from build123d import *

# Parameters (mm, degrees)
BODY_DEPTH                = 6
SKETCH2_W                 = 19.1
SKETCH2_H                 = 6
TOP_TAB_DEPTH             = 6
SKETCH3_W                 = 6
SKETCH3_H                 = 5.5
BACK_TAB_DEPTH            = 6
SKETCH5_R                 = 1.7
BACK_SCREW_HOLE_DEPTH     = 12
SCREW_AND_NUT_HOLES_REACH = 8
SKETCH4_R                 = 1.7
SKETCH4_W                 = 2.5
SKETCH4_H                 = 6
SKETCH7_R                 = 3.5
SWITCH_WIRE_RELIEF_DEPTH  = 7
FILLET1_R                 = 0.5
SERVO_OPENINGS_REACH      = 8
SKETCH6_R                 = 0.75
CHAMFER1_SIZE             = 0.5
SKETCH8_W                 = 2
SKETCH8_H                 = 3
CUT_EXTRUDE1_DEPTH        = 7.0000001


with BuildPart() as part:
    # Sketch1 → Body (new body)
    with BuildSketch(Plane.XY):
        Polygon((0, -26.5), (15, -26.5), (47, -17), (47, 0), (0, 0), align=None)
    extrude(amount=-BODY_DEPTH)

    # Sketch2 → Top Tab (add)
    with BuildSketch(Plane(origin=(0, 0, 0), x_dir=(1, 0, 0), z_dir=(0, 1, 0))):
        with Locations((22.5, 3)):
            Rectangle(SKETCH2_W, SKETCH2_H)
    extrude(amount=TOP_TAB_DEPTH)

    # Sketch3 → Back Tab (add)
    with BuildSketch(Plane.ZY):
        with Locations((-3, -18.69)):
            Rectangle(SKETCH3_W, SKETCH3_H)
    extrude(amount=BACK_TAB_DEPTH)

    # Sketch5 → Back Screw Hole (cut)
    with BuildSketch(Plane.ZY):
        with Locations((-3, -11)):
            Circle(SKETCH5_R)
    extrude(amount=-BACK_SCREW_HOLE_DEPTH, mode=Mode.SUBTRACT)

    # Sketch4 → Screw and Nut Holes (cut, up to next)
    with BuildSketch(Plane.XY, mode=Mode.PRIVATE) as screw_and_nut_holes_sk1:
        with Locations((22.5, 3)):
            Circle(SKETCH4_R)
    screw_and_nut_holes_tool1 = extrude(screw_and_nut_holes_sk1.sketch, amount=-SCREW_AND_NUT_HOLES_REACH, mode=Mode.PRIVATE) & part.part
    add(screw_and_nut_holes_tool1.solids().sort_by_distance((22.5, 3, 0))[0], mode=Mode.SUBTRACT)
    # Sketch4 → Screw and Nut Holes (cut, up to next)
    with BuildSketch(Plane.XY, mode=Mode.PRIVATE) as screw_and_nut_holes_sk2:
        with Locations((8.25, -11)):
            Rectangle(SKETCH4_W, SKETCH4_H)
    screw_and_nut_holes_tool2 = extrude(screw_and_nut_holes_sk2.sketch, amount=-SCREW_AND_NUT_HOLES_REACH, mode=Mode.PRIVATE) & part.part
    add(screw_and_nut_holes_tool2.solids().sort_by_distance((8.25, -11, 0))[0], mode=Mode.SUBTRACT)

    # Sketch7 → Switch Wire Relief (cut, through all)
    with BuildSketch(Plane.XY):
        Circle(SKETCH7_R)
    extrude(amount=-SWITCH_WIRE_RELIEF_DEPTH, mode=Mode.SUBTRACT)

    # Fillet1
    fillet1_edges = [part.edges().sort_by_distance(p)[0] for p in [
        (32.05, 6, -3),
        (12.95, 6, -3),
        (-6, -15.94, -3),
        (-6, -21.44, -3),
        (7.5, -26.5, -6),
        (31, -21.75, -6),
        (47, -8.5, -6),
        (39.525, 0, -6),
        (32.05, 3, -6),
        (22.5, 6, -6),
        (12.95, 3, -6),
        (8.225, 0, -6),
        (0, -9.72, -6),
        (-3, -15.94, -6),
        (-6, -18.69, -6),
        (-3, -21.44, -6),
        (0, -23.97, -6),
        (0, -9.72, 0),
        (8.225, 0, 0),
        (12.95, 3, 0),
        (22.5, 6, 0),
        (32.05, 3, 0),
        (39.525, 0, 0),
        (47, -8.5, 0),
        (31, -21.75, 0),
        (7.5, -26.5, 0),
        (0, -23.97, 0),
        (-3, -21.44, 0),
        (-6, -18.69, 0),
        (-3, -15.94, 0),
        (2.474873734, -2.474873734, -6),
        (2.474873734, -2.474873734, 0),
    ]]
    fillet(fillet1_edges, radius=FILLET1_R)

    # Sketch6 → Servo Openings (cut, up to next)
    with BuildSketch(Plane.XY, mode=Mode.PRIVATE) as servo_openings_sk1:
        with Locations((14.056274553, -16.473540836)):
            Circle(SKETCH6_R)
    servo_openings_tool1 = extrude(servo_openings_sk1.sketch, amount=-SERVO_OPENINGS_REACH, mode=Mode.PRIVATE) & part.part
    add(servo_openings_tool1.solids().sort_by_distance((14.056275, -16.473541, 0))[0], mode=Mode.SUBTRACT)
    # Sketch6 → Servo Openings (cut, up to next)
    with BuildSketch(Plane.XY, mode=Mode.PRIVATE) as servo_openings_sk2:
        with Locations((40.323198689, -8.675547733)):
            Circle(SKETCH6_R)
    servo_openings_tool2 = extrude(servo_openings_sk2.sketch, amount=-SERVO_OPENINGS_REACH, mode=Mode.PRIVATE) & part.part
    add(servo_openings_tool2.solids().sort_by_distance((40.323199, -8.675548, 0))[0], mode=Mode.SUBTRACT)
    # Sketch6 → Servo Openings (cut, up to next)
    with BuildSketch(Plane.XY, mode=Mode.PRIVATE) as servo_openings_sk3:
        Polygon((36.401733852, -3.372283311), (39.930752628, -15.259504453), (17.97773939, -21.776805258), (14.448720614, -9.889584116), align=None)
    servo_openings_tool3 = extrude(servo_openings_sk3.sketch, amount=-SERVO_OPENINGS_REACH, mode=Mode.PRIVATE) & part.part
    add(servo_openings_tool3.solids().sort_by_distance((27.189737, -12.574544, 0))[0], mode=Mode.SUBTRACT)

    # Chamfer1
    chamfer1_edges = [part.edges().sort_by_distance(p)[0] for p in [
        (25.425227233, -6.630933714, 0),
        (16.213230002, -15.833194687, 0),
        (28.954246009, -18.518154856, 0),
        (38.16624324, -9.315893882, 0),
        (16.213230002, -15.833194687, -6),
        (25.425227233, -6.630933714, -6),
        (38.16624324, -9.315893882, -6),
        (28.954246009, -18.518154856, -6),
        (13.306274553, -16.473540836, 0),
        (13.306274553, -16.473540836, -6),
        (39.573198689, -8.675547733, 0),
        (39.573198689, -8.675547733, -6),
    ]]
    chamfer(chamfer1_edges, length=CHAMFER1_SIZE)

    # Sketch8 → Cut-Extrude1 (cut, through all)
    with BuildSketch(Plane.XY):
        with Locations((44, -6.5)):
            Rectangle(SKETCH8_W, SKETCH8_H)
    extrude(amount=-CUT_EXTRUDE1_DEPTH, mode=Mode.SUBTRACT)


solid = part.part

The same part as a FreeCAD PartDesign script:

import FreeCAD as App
import Part
import Sketcher

V = App.Vector
Q = App.Units.Quantity


def edges_at(feature, points):
    """Names of the edges that pass closest to the given points."""
    edges = feature.Shape.Edges
    near = lambda p: min(range(len(edges)), key=lambda i: edges[i].distToShape(Part.Vertex(*p))[0])
    return sorted({f"Edge{near(p) + 1}" for p in points})

doc = App.newDocument("Part")
body = doc.addObject("PartDesign::Body", "Body")

# Sketch on XY plane
sketch1 = doc.addObject("Sketcher::SketchObject", "Sketch")
body.addObject(sketch1)
sketch1.AttachmentSupport = (doc.XY_Plane, [""])
sketch1.MapMode = "FlatFace"
sketch1.addGeometry([
    Part.LineSegment(V(0, -26, 0), V(15, -26, 0)),  # 0
    Part.LineSegment(V(15, -26, 0), V(47, -17, 0)),  # 1
    Part.LineSegment(V(47, -17, 0), V(47, 0, 0)),  # 2
    Part.LineSegment(V(47, 0, 0), V(0, 0, 0)),  # 3
    Part.LineSegment(V(0, 0, 0), V(0, -26, 0)),  # 4
], False)
sketch1.addConstraint([
    Sketcher.Constraint("Coincident", 0, 2, 1, 1),
    Sketcher.Constraint("Coincident", 1, 2, 2, 1),
    Sketcher.Constraint("Coincident", 2, 2, 3, 1),
    Sketcher.Constraint("Coincident", 3, 2, 4, 1),
    Sketcher.Constraint("Coincident", 4, 2, 0, 1),
    Sketcher.Constraint("Horizontal", 0),
    Sketcher.Constraint("Vertical", 2),
    Sketcher.Constraint("Horizontal", 3),
    Sketcher.Constraint("Vertical", 4),
    Sketcher.Constraint("Coincident", 3, 2, -1, 1),
    Sketcher.Constraint("DistanceX", 0, 1, 0, 2, Q("15 mm")),
    Sketcher.Constraint("DistanceX", 3, 2, 3, 1, Q("47 mm")),
    Sketcher.Constraint("DistanceY", 2, 1, 2, 2, Q("17 mm")),
    Sketcher.Constraint("DistanceY", 4, 2, 4, 1, Q("26.5 mm")),
])
pad1 = doc.addObject("PartDesign::Pad", "Pad")
body.addObject(pad1)
pad1.Profile = sketch1
pad1.Length = 6
pad1.Reversed = True

# Sketch on XZ plane
sketch2 = doc.addObject("Sketcher::SketchObject", "Sketch001")
body.addObject(sketch2)
sketch2.AttachmentSupport = (doc.XZ_Plane, [""])
sketch2.MapMode = "FlatFace"
sketch2.addGeometry([
    Part.LineSegment(V(13, -6, 0), V(13, 0, 0)),
    Part.LineSegment(V(13, 0, 0), V(32, 0, 0)),
    Part.LineSegment(V(32, 0, 0), V(32, -6, 0)),
    Part.LineSegment(V(32, -6, 0), V(13, -6, 0)),
], False)
sketch2.addConstraint([
    Sketcher.Constraint("Coincident", 0, 2, 1, 1),
    Sketcher.Constraint("Coincident", 1, 2, 2, 1),
    Sketcher.Constraint("Coincident", 2, 2, 3, 1),
    Sketcher.Constraint("Coincident", 3, 2, 0, 1),
    Sketcher.Constraint("Vertical", 0),
    Sketcher.Constraint("Horizontal", 1),
    Sketcher.Constraint("Vertical", 2),
    Sketcher.Constraint("Horizontal", 3),
    Sketcher.Constraint("PointOnObject", 0, 2, -1),
    Sketcher.Constraint("DistanceY", 0, 1, 0, 2, Q("6 mm")),
    Sketcher.Constraint("DistanceX", 1, 1, 1, 2, Q("19.1 mm")),
    Sketcher.Constraint("DistanceX", -1, 1, 0, 2, Q("12.95 mm")),
])
pad2 = doc.addObject("PartDesign::Pad", "Pad001")
body.addObject(pad2)
pad2.Profile = sketch2
pad2.Length = 6
pad2.Reversed = True

# Sketch on YZ plane
sketch3 = doc.addObject("Sketcher::SketchObject", "Sketch002")
body.addObject(sketch3)
sketch3.AttachmentSupport = (doc.YZ_Plane, [""])
sketch3.MapMode = "FlatFace"
sketch3.addGeometry([
    Part.LineSegment(V(-16, -6, 0), V(-21, -6, 0)),
    Part.LineSegment(V(-21, -6, 0), V(-21, 0, 0)),
    Part.LineSegment(V(-21, 0, 0), V(-16, 0, 0)),
    Part.LineSegment(V(-16, 0, 0), V(-16, -6, 0)),
], False)
sketch3.addConstraint([
    Sketcher.Constraint("Coincident", 0, 2, 1, 1),
    Sketcher.Constraint("Coincident", 1, 2, 2, 1),
    Sketcher.Constraint("Coincident", 2, 2, 3, 1),
    Sketcher.Constraint("Coincident", 3, 2, 0, 1),
    Sketcher.Constraint("Horizontal", 0),
    Sketcher.Constraint("Vertical", 1),
    Sketcher.Constraint("Horizontal", 2),
    Sketcher.Constraint("Vertical", 3),
    Sketcher.Constraint("PointOnObject", 1, 2, -1),
    Sketcher.Constraint("DistanceY", 1, 1, 1, 2, Q("6 mm")),
    Sketcher.Constraint("DistanceX", 0, 2, 0, 1, Q("5.5 mm")),
    Sketcher.Constraint("DistanceX", 0, 2, -1, 1, Q("21.44 mm")),
])
pad3 = doc.addObject("PartDesign::Pad", "Pad002")
body.addObject(pad3)
pad3.Profile = sketch3
pad3.Length = 6
pad3.Reversed = True

# Sketch on YZ plane
sketch4 = doc.addObject("Sketcher::SketchObject", "Sketch003")
body.addObject(sketch4)
sketch4.AttachmentSupport = (doc.YZ_Plane, [""])
sketch4.MapMode = "FlatFace"
sketch4.addGeometry(Part.Circle(V(-11, -3, 0), V(0, 0, 1), 1.7), False)
sketch4.addConstraint([
    Sketcher.Constraint("Diameter", 0, Q("3.4 mm")),
    Sketcher.Constraint("DistanceX", 0, 3, -1, 1, Q("11 mm")),
    Sketcher.Constraint("DistanceY", 0, 3, -1, 1, Q("3 mm")),
])
pocket1 = doc.addObject("PartDesign::Pocket", "Pocket")
body.addObject(pocket1)
pocket1.Profile = sketch4
pocket1.Length = 12
pocket1.Reversed = True

# Sketch on XY plane
sketch5 = doc.addObject("Sketcher::SketchObject", "Sketch004")
body.addObject(sketch5)
sketch5.AttachmentSupport = (doc.XY_Plane, [""])
sketch5.MapMode = "FlatFace"
sketch5.addGeometry(Part.Circle(V(22.5, 3, 0), V(0, 0, 1), 1.7), False)
sketch5.addConstraint([
    Sketcher.Constraint("Diameter", 0, Q("3.4 mm")),
    Sketcher.Constraint("DistanceY", -1, 1, 0, 3, Q("3 mm")),
    Sketcher.Constraint("DistanceX", -1, 1, 0, 3, Q("22.5 mm")),
])
pocket2 = doc.addObject("PartDesign::Pocket", "Pocket001")
body.addObject(pocket2)
pocket2.Profile = sketch5
pocket2.Type = "UpToFirst"

# Sketch on XY plane
sketch6 = doc.addObject("Sketcher::SketchObject", "Sketch005")
body.addObject(sketch6)
sketch6.AttachmentSupport = (doc.XY_Plane, [""])
sketch6.MapMode = "FlatFace"
sketch6.addGeometry([
    Part.LineSegment(V(7, -8, 0), V(7, -14, 0)),
    Part.LineSegment(V(7, -14, 0), V(9.5, -14, 0)),
    Part.LineSegment(V(9.5, -14, 0), V(9.5, -8, 0)),
    Part.LineSegment(V(9.5, -8, 0), V(7, -8, 0)),
], False)
sketch6.addConstraint([
    Sketcher.Constraint("Coincident", 0, 2, 1, 1),
    Sketcher.Constraint("Coincident", 1, 2, 2, 1),
    Sketcher.Constraint("Coincident", 2, 2, 3, 1),
    Sketcher.Constraint("Coincident", 3, 2, 0, 1),
    Sketcher.Constraint("Vertical", 0),
    Sketcher.Constraint("Horizontal", 1),
    Sketcher.Constraint("Vertical", 2),
    Sketcher.Constraint("Horizontal", 3),
    Sketcher.Constraint("DistanceY", 0, 2, 0, 1, Q("6 mm")),
    Sketcher.Constraint("DistanceX", 1, 1, 1, 2, Q("2.5 mm")),
    Sketcher.Constraint("DistanceX", -1, 1, 0, 2, Q("7 mm")),
    Sketcher.Constraint("DistanceY", 0, 2, -1, 1, Q("14 mm")),
])
pocket3 = doc.addObject("PartDesign::Pocket", "Pocket002")
body.addObject(pocket3)
pocket3.Profile = sketch6
pocket3.Type = "UpToFirst"

# Sketch on XY plane
sketch7 = doc.addObject("Sketcher::SketchObject", "Sketch006")
body.addObject(sketch7)
sketch7.AttachmentSupport = (doc.XY_Plane, [""])
sketch7.MapMode = "FlatFace"
sketch7.addGeometry(Part.Circle(V(0, 0, 0), V(0, 0, 1), 3.5), False)
sketch7.addConstraint([
    Sketcher.Constraint("Coincident", 0, 3, -1, 1),
    Sketcher.Constraint("Diameter", 0, Q("7 mm")),
])
pocket4 = doc.addObject("PartDesign::Pocket", "Pocket003")
body.addObject(pocket4)
pocket4.Profile = sketch7
pocket4.Type = "ThroughAll"
doc.recompute()

fillet = doc.addObject("PartDesign::Fillet", "Fillet")
body.addObject(fillet)
fillet.Base = (pocket4, edges_at(pocket4, [
    (32.05, 6, -3),
    (12.95, 6, -3),
    (-6, -15.94, -3),
    (-6, -21.44, -3),
    (7.5, -26.5, -6),
    (31, -21.75, -6),
    (47, -8.5, -6),
    (39.525, 0, -6),
    (32.05, 3, -6),
    (22.5, 6, -6),
    (12.95, 3, -6),
    (8.225, 0, -6),
    (0, -9.72, -6),
    (-3, -15.94, -6),
    (-6, -18.69, -6),
    (-3, -21.44, -6),
    (0, -23.97, -6),
    (0, -9.72, 0),
    (8.225, 0, 0),
    (12.95, 3, 0),
    (22.5, 6, 0),
    (32.05, 3, 0),
    (39.525, 0, 0),
    (47, -8.5, 0),
    (31, -21.75, 0),
    (7.5, -26.5, 0),
    (0, -23.97, 0),
    (-3, -21.44, 0),
    (-6, -18.69, 0),
    (-3, -15.94, 0),
    (2.475, -2.475, -6),
    (2.475, -2.475, 0),
]))
fillet.Radius = 0.5

# Sketch on XY plane
sketch8 = doc.addObject("Sketcher::SketchObject", "Sketch007")
body.addObject(sketch8)
sketch8.AttachmentSupport = (doc.XY_Plane, [""])
sketch8.MapMode = "FlatFace"
sketch8.addGeometry(Part.Circle(V(14.1, -16.5, 0), V(0, 0, 1), 0.8), False)
sketch8.addConstraint([
    Sketcher.Constraint("Diameter", 0, Q("1.5 mm")),
    Sketcher.Constraint("DistanceY", 0, 3, -1, 1, Q("16.473541 mm")),
    Sketcher.Constraint("DistanceX", -1, 1, 0, 3, Q("14.056275 mm")),
])
pocket5 = doc.addObject("PartDesign::Pocket", "Pocket004")
body.addObject(pocket5)
pocket5.Profile = sketch8
pocket5.Type = "UpToFirst"

# Sketch on XY plane
sketch9 = doc.addObject("Sketcher::SketchObject", "Sketch008")
body.addObject(sketch9)
sketch9.AttachmentSupport = (doc.XY_Plane, [""])
sketch9.MapMode = "FlatFace"
sketch9.addGeometry(Part.Circle(V(40.3, -8.7, 0), V(0, 0, 1), 0.8), False)
sketch9.addConstraint([
    Sketcher.Constraint("Diameter", 0, Q("1.5 mm")),
    Sketcher.Constraint("DistanceX", -1, 1, 0, 3, Q("40.323199 mm")),
    Sketcher.Constraint("DistanceY", 0, 3, -1, 1, Q("8.675548 mm")),
])
pocket6 = doc.addObject("PartDesign::Pocket", "Pocket005")
body.addObject(pocket6)
pocket6.Profile = sketch9
pocket6.Type = "UpToFirst"

# Sketch on XY plane
sketch10 = doc.addObject("Sketcher::SketchObject", "Sketch009")
body.addObject(sketch10)
sketch10.AttachmentSupport = (doc.XY_Plane, [""])
sketch10.MapMode = "FlatFace"
sketch10.addGeometry([
    Part.LineSegment(V(40, -15, 0), V(36, -3, 0)),
    Part.LineSegment(V(36, -3, 0), V(14, -10, 0)),
    Part.LineSegment(V(14, -10, 0), V(18, -22, 0)),
    Part.LineSegment(V(18, -22, 0), V(40, -15, 0)),
], False)
sketch10.addConstraint([
    Sketcher.Constraint("Coincident", 0, 2, 1, 1),
    Sketcher.Constraint("Coincident", 1, 2, 2, 1),
    Sketcher.Constraint("Coincident", 2, 2, 3, 1),
    Sketcher.Constraint("Coincident", 3, 2, 0, 1),
    Sketcher.Constraint("Perpendicular", 0, 1),
    Sketcher.Constraint("Perpendicular", 1, 2),
    Sketcher.Constraint("Perpendicular", 2, 3),
    Sketcher.Constraint("Distance", 0, Q("12.4 mm")),
    Sketcher.Constraint("Distance", 1, Q("22.9 mm")),
    Sketcher.Constraint("DistanceY", 1, 2, 0, 2, Q("6.517301 mm")),
    Sketcher.Constraint("DistanceX", -1, 1, 1, 2, Q("14.448721 mm")),
    Sketcher.Constraint("DistanceY", 0, 2, -1, 1, Q("3.372283 mm")),
])
pocket7 = doc.addObject("PartDesign::Pocket", "Pocket006")
body.addObject(pocket7)
pocket7.Profile = sketch10
pocket7.Type = "UpToFirst"
doc.recompute()

chamfer = doc.addObject("PartDesign::Chamfer", "Chamfer")
body.addObject(chamfer)
chamfer.Base = (pocket7, edges_at(pocket7, [
    (25.425, -6.631, 0),
    (16.213, -15.833, 0),
    (28.954, -18.518, 0),
    (38.166, -9.316, 0),
    (16.213, -15.833, -6),
    (25.425, -6.631, -6),
    (38.166, -9.316, -6),
    (28.954, -18.518, -6),
    (13.306, -16.474, 0),
    (13.306, -16.474, -6),
    (39.573, -8.676, 0),
    (39.573, -8.676, -6),
]))
chamfer.Size = 0.5

# Sketch on XY plane
sketch11 = doc.addObject("Sketcher::SketchObject", "Sketch010")
body.addObject(sketch11)
sketch11.AttachmentSupport = (doc.XY_Plane, [""])
sketch11.MapMode = "FlatFace"
sketch11.addGeometry([
    Part.LineSegment(V(43, -5, 0), V(43, -8, 0)),
    Part.LineSegment(V(43, -8, 0), V(45, -8, 0)),
    Part.LineSegment(V(45, -8, 0), V(45, -5, 0)),
    Part.LineSegment(V(45, -5, 0), V(43, -5, 0)),
], False)
sketch11.addConstraint([
    Sketcher.Constraint("Coincident", 0, 2, 1, 1),
    Sketcher.Constraint("Coincident", 1, 2, 2, 1),
    Sketcher.Constraint("Coincident", 2, 2, 3, 1),
    Sketcher.Constraint("Coincident", 3, 2, 0, 1),
    Sketcher.Constraint("Vertical", 0),
    Sketcher.Constraint("Horizontal", 1),
    Sketcher.Constraint("Vertical", 2),
    Sketcher.Constraint("Horizontal", 3),
    Sketcher.Constraint("DistanceX", 1, 1, 1, 2, Q("2 mm")),
    Sketcher.Constraint("DistanceY", 0, 2, 0, 1, Q("3 mm")),
    Sketcher.Constraint("DistanceX", -1, 1, 0, 2, Q("43 mm")),
    Sketcher.Constraint("DistanceY", 0, 2, -1, 1, Q("8 mm")),
])
pocket8 = doc.addObject("PartDesign::Pocket", "Pocket007")
body.addObject(pocket8)
pocket8.Profile = sketch11
pocket8.Type = "ThroughAll"

doc.recompute()
